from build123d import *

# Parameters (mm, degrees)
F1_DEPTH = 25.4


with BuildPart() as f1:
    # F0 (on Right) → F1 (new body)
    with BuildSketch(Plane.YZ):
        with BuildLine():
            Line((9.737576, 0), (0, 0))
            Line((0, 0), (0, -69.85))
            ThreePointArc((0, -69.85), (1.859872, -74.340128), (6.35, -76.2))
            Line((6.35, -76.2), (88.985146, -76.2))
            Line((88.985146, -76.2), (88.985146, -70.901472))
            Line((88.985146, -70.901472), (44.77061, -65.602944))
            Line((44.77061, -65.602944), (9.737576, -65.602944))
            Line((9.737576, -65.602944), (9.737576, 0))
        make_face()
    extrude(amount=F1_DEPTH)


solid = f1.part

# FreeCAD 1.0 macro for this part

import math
import FreeCAD as App
import Part
import Sketcher
Q = App.Units.Quantity

doc = App.newDocument("Part")
body = doc.addObject("PartDesign::Body", "Body")

# Sketch on YZ plane
sketch1 = body.newObject("Sketcher::SketchObject", "Sketch")
sketch1.AttachmentSupport = (doc.getObject("YZ_Plane"), [""])
sketch1.MapMode = "FlatFace"
sketch1.addGeometry(Part.LineSegment(App.Vector(10, 0, 0), App.Vector(0, 0, 0)), False)
sketch1.addGeometry(Part.LineSegment(App.Vector(0, 0, 0), App.Vector(0, -70, 0)), False)
sketch1.addGeometry(Part.ArcOfCircle(Part.Circle(App.Vector(6, -70, 0), App.Vector(0, 0, 1), 6), math.radians(-180), math.radians(-90)), False)
sketch1.addGeometry(Part.LineSegment(App.Vector(6, -76, 0), App.Vector(89, -76, 0)), False)
sketch1.addGeometry(Part.LineSegment(App.Vector(89, -76, 0), App.Vector(89, -71, 0)), False)
sketch1.addGeometry(Part.LineSegment(App.Vector(89, -71, 0), App.Vector(45, -66, 0)), False)
sketch1.addGeometry(Part.LineSegment(App.Vector(45, -66, 0), App.Vector(10, -66, 0)), False)
sketch1.addGeometry(Part.LineSegment(App.Vector(10, -66, 0), App.Vector(10, 0, 0)), False)
sketch1.addConstraint(Sketcher.Constraint("Coincident", 0, 2, 1, 1))
sketch1.addConstraint(Sketcher.Constraint("Tangent", 1, 2, 2, 1))
sketch1.addConstraint(Sketcher.Constraint("Tangent", 2, 2, 3, 1))
sketch1.addConstraint(Sketcher.Constraint("Coincident", 3, 2, 4, 1))
sketch1.addConstraint(Sketcher.Constraint("Coincident", 4, 2, 5, 1))
sketch1.addConstraint(Sketcher.Constraint("Coincident", 5, 2, 6, 1))
sketch1.addConstraint(Sketcher.Constraint("Coincident", 6, 2, 7, 1))
sketch1.addConstraint(Sketcher.Constraint("Coincident", 7, 2, 0, 1))
sketch1.addConstraint(Sketcher.Constraint("Horizontal", 0))
sketch1.addConstraint(Sketcher.Constraint("Vertical", 1))
sketch1.addConstraint(Sketcher.Constraint("Horizontal", 3))
sketch1.addConstraint(Sketcher.Constraint("Vertical", 4))
sketch1.addConstraint(Sketcher.Constraint("Horizontal", 6))
sketch1.addConstraint(Sketcher.Constraint("Vertical", 7))
sketch1.addConstraint(Sketcher.Constraint("Coincident", 0, 2, -1, 1))
sketch1.addConstraint(Sketcher.Constraint("Radius", 2, Q("0.25 in")))
sketch1.addConstraint(Sketcher.Constraint("DistanceY", 2, 2, -1, 1, Q("3 in")))
sketch1.addConstraint(Sketcher.Constraint("DistanceY", 4, 1, 4, 2, 5.298528))
sketch1.addConstraint(Sketcher.Constraint("DistanceX", 0, 2, 0, 1, 9.737576))
sketch1.addConstraint(Sketcher.Constraint("DistanceX", 3, 1, 3, 2, 82.635146))
sketch1.addConstraint(Sketcher.Constraint("DistanceX", 6, 2, 6, 1, 35.033034))
sketch1.addConstraint(Sketcher.Constraint("DistanceY", 7, 1, 7, 2, 65.602944))
pad1 = body.newObject("PartDesign::Pad", "Pad")
pad1.Profile = sketch1
pad1.Length = Q("1 in")

doc.recompute()
